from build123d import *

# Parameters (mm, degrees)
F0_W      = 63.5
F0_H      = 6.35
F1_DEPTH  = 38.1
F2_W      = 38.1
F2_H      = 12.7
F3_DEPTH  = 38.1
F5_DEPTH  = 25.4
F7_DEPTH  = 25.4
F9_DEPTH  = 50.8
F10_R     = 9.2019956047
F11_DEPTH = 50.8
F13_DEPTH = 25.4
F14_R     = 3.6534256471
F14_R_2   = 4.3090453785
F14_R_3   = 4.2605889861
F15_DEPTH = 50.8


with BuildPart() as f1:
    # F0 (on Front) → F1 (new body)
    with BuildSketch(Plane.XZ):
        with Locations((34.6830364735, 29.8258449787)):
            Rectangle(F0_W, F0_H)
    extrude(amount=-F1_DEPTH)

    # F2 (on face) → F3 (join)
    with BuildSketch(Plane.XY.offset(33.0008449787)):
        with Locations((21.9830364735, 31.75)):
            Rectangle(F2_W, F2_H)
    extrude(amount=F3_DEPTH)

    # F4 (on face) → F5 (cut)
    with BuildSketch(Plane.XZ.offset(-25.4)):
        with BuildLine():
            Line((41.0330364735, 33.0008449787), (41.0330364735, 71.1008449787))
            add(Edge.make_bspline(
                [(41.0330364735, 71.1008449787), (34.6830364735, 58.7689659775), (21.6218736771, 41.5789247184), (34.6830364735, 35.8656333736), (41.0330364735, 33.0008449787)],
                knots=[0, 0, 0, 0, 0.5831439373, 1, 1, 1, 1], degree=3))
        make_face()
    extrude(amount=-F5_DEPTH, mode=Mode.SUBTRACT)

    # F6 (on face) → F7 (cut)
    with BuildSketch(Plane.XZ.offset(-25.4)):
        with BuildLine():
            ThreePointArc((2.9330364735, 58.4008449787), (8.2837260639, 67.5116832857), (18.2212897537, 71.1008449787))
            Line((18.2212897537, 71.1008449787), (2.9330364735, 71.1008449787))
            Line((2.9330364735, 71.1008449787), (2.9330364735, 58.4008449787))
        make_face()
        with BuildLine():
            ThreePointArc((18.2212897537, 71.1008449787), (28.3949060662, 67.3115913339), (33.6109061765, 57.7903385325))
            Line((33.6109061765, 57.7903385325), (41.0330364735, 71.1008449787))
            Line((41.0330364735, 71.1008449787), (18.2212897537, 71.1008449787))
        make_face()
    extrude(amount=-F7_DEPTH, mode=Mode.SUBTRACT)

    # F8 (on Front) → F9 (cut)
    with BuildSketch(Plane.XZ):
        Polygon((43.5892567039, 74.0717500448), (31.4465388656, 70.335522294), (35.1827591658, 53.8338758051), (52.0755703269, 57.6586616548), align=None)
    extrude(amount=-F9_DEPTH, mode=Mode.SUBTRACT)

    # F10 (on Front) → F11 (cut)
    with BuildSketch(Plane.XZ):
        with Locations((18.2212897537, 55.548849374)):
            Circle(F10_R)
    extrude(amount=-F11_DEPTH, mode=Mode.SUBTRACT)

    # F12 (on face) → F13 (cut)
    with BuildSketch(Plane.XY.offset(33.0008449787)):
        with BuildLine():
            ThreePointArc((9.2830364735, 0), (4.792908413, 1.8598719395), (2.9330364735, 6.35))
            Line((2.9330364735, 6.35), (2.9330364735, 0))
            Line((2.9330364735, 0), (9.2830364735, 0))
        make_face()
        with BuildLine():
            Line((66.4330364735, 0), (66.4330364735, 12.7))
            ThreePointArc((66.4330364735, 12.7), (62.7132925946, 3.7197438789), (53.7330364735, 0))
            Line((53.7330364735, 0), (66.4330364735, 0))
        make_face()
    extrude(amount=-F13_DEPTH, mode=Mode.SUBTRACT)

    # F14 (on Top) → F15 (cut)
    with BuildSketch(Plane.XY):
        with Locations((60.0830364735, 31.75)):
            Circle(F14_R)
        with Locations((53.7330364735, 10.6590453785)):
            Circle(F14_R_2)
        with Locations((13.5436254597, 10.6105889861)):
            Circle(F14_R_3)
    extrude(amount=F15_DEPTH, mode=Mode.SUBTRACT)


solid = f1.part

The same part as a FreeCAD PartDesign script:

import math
import FreeCAD as App
import Part
import Sketcher
from FreeCAD import Vector
Q = App.Units.Quantity

doc = App.newDocument("Part")
params = doc.addObject("Spreadsheet::Sheet", "Params")
for row, (alias, value) in enumerate([
    ("sketch1_width", "2.5 in"),
    ("sketch1_height", "0.25 in"),
    ("pad1_length", "1.5 in"),
    ("sketch2_width", "1.5 in"),
    ("sketch2_height", "0.5 in"),
    ("pad2_length", "1.5 in"),
    ("pocket1_length", "1 in"),
    ("sketch4_height", "0.5 in"),
    ("sketch4_length", "0.6 in"),
    ("pocket2_length", "1 in"),
    ("pocket3_length", "2 in"),
    ("pocket4_length", "2 in"),
    ("sketch7_radius", "0.5 in"),
    ("sketch7_radius2", "0.25 in"),
    ("pocket5_length", "1 in"),
    ("pocket6_length", "2 in"),
], start=1):
    params.set(f"A{row}", alias)
    params.set(f"B{row}", "=" + value)
    params.setAlias(f"B{row}", alias)

body = doc.addObject("PartDesign::Body", "Body")
body.AllowCompound = True

# Sketch on XZ plane
sketch1 = body.newObject("Sketcher::SketchObject", "Sketch")
sketch1.AttachmentSupport = (doc.getObject("XZ_Plane"), [""])
sketch1.MapMode = "FlatFace"
sketch1.addGeometry(Part.LineSegment(Vector(2.933036, 33.000845, 0), Vector(2.933036, 26.650845, 0)), False)
sketch1.addGeometry(Part.LineSegment(Vector(2.933036, 26.650845, 0), Vector(66.433036, 26.650845, 0)), False)
sketch1.addGeometry(Part.LineSegment(Vector(66.433036, 26.650845, 0), Vector(66.433036, 33.000845, 0)), False)
sketch1.addGeometry(Part.LineSegment(Vector(66.433036, 33.000845, 0), Vector(2.933036, 33.000845, 0)), False)
sketch1.addConstraint(Sketcher.Constraint("Coincident", 0, 2, 1, 1))
sketch1.addConstraint(Sketcher.Constraint("Coincident", 1, 2, 2, 1))
sketch1.addConstraint(Sketcher.Constraint("Coincident", 2, 2, 3, 1))
sketch1.addConstraint(Sketcher.Constraint("Coincident", 3, 2, 0, 1))
sketch1.addConstraint(Sketcher.Constraint("Vertical", 0))
sketch1.addConstraint(Sketcher.Constraint("Horizontal", 1))
sketch1.addConstraint(Sketcher.Constraint("Vertical", 2))
sketch1.addConstraint(Sketcher.Constraint("Horizontal", 3))
sketch1.addConstraint(Sketcher.Constraint("DistanceX", 1, 1, 1, 2, Q("2.5 in")))
sketch1.addConstraint(Sketcher.Constraint("DistanceY", 0, 2, 0, 1, Q("0.25 in")))
sketch1.addConstraint(Sketcher.Constraint("DistanceX", -1, 1, 0, 2, 2.933036))
sketch1.addConstraint(Sketcher.Constraint("DistanceY", -1, 1, 0, 2, 26.650845))
sketch1.setExpression("Constraints[8]", "Params.sketch1_width")
sketch1.setExpression("Constraints[9]", "Params.sketch1_height")
pad1 = body.newObject("PartDesign::Pad", "Pad")
pad1.Profile = sketch1
pad1.setExpression("Length", "Params.pad1_length")
pad1.Reversed = True

# Sketch on XY plane
sketch2 = body.newObject("Sketcher::SketchObject", "Sketch001")
sketch2.AttachmentSupport = (doc.getObject("XY_Plane"), [""])
sketch2.MapMode = "FlatFace"
sketch2.AttachmentOffset = App.Placement(Vector(0, 0, 33.000845), App.Rotation())
sketch2.addGeometry(Part.LineSegment(Vector(2.933036, 38.1, 0), Vector(2.933036, 25.4, 0)), False)
sketch2.addGeometry(Part.LineSegment(Vector(2.933036, 25.4, 0), Vector(41.033036, 25.4, 0)), False)
sketch2.addGeometry(Part.LineSegment(Vector(41.033036, 25.4, 0), Vector(41.033036, 38.1, 0)), False)
sketch2.addGeometry(Part.LineSegment(Vector(41.033036, 38.1, 0), Vector(2.933036, 38.1, 0)), False)
sketch2.addConstraint(Sketcher.Constraint("Coincident", 0, 2, 1, 1))
sketch2.addConstraint(Sketcher.Constraint("Coincident", 1, 2, 2, 1))
sketch2.addConstraint(Sketcher.Constraint("Coincident", 2, 2, 3, 1))
sketch2.addConstraint(Sketcher.Constraint("Coincident", 3, 2, 0, 1))
sketch2.addConstraint(Sketcher.Constraint("Vertical", 0))
sketch2.addConstraint(Sketcher.Constraint("Horizontal", 1))
sketch2.addConstraint(Sketcher.Constraint("Vertical", 2))
sketch2.addConstraint(Sketcher.Constraint("Horizontal", 3))
sketch2.addConstraint(Sketcher.Constraint("DistanceX", 1, 1, 1, 2, Q("1.5 in")))
sketch2.addConstraint(Sketcher.Constraint("DistanceY", 0, 2, 0, 1, Q("0.5 in")))
sketch2.addConstraint(Sketcher.Constraint("DistanceY", -1, 1, 0, 2, Q("1 in")))
sketch2.addConstraint(Sketcher.Constraint("DistanceX", -1, 1, 0, 2, 2.933036))
sketch2.setExpression("Constraints[8]", "Params.sketch2_width")
sketch2.setExpression("Constraints[9]", "Params.sketch2_height")
pad2 = body.newObject("PartDesign::Pad", "Pad001")
pad2.Profile = sketch2
pad2.setExpression("Length", "Params.pad2_length")

# Sketch on XZ plane
sketch3 = body.newObject("Sketcher::SketchObject", "Sketch002")
sketch3.AttachmentSupport = (doc.getObject("XZ_Plane"), [""])
sketch3.MapMode = "FlatFace"
sketch3.AttachmentOffset = App.Placement(Vector(0, 0, -1 * 25.4), App.Rotation())
sketch3.addGeometry(Part.LineSegment(Vector(41.033036, 33.000845, 0), Vector(41.033036, 71.100845, 0)), False)
sketch3.addGeometry(Part.BSplineCurve([Vector(41.033036, 71.100845, 0), Vector(34.683036, 58.768966, 0), Vector(21.621874, 41.578925, 0), Vector(34.683036, 35.865633, 0), Vector(41.033036, 33.000845, 0)], [4, 1, 4], [0, 0.583143937, 1], False, 3, [1, 1, 1, 1, 1], False), False)
sketch3.addConstraint(Sketcher.Constraint("Block", 1))
sketch3.addConstraint(Sketcher.Constraint("Coincident", 0, 1, 1, 2))
sketch3.addConstraint(Sketcher.Constraint("Coincident", 1, 1, 0, 2))
pocket1 = body.newObject("PartDesign::Pocket", "Pocket")
pocket1.Profile = sketch3
pocket1.setExpression("Length", "Params.pocket1_length")

# Sketch on XZ plane
sketch4 = body.newObject("Sketcher::SketchObject", "Sketch003")
sketch4.AttachmentSupport = (doc.getObject("XZ_Plane"), [""])
sketch4.MapMode = "FlatFace"
sketch4.AttachmentOffset = App.Placement(Vector(0, 0, -1 * 25.4), App.Rotation())
sketch4.addGeometry(Part.ArcOfCircle(Part.Circle(Vector(18.22129, 55.548849, 0), Vector(0, 0, 1), 15.551996), math.radians(90), math.radians(169.433038)), False)
sketch4.addGeometry(Part.LineSegment(Vector(18.22129, 71.100845, 0), Vector(2.933036, 71.100845, 0)), False)
sketch4.addGeometry(Part.LineSegment(Vector(2.933036, 71.100845, 0), Vector(2.933036, 58.400845, 0)), False)
sketch4.addGeometry(Part.ArcOfCircle(Part.Circle(Vector(18.22129, 55.548849, 0), Vector(0, 0, 1), 15.551996), math.radians(8.286828), math.radians(90)), False)
sketch4.addGeometry(Part.LineSegment(Vector(33.610906, 57.790339, 0), Vector(41.033036, 71.100845, 0)), False)
sketch4.addGeometry(Part.LineSegment(Vector(41.033036, 71.100845, 0), Vector(18.22129, 71.100845, 0)), False)
sketch4.addConstraint(Sketcher.Constraint("Tangent", 0, 1, 1, 1))
sketch4.addConstraint(Sketcher.Constraint("Coincident", 1, 2, 2, 1))
sketch4.addConstraint(Sketcher.Constraint("Coincident", 2, 2, 0, 2))
sketch4.addConstraint(Sketcher.Constraint("Coincident", 3, 1, 4, 1))
sketch4.addConstraint(Sketcher.Constraint("Coincident", 4, 2, 5, 1))
sketch4.addConstraint(Sketcher.Constraint("Tangent", 5, 2, 3, 2))
sketch4.addConstraint(Sketcher.Constraint("Horizontal", 1))
sketch4.addConstraint(Sketcher.Constraint("Vertical", 2))
sketch4.addConstraint(Sketcher.Constraint("Horizontal", 5))
sketch4.addConstraint(Sketcher.Constraint("Coincident", 3, 3, 0, 3))
sketch4.addConstraint(Sketcher.Constraint("Equal", 0, 3))
sketch4.addConstraint(Sketcher.Constraint("DistanceY", 2, 2, 2, 1, Q("0.5 in")))
sketch4.addConstraint(Sketcher.Constraint("Distance", 4, Q("0.6 in")))
sketch4.addConstraint(Sketcher.Constraint("DistanceX", 1, 2, 4, 2, Q("1.5 in")))
sketch4.addConstraint(Sketcher.Constraint("Radius", 0, 15.551996))
sketch4.addConstraint(Sketcher.Constraint("DistanceX", -1, 1, 0, 3, 18.22129))
sketch4.addConstraint(Sketcher.Constraint("DistanceY", -1, 1, 0, 3, 55.548849))
sketch4.setExpression("Constraints[11]", "Params.sketch4_height")
sketch4.setExpression("Constraints[12]", "Params.sketch4_length")
pocket2 = body.newObject("PartDesign::Pocket", "Pocket001")
pocket2.Profile = sketch4
pocket2.setExpression("Length", "Params.pocket2_length")

# Sketch on XZ plane
sketch5 = body.newObject("Sketcher::SketchObject", "Sketch004")
sketch5.AttachmentSupport = (doc.getObject("XZ_Plane"), [""])
sketch5.MapMode = "FlatFace"
sketch5.addGeometry(Part.LineSegment(Vector(43.589257, 74.07175, 0), Vector(31.446539, 70.335522, 0)), False)
sketch5.addGeometry(Part.LineSegment(Vector(31.446539, 70.335522, 0), Vector(35.182759, 53.833876, 0)), False)
sketch5.addGeometry(Part.LineSegment(Vector(35.182759, 53.833876, 0), Vector(52.07557, 57.658662, 0)), False)
sketch5.addGeometry(Part.LineSegment(Vector(52.07557, 57.658662, 0), Vector(43.589257, 74.07175, 0)), False)
sketch5.addConstraint(Sketcher.Constraint("Coincident", 0, 2, 1, 1))
sketch5.addConstraint(Sketcher.Constraint("Coincident", 1, 2, 2, 1))
sketch5.addConstraint(Sketcher.Constraint("Coincident", 2, 2, 3, 1))
sketch5.addConstraint(Sketcher.Constraint("Coincident", 3, 2, 0, 1))
sketch5.addConstraint(Sketcher.Constraint("Perpendicular", 1, 2))
sketch5.addConstraint(Sketcher.Constraint("Distance", 3, 18.477202))
sketch5.addConstraint(Sketcher.Constraint("Distance", 1, 16.919329))
sketch5.addConstraint(Sketcher.Constraint("DistanceX", -1, 1, 0, 2, 31.446539))
sketch5.addConstraint(Sketcher.Constraint("DistanceX", -1, 1, 1, 2, 35.182759))
sketch5.addConstraint(Sketcher.Constraint("DistanceX", -1, 1, 2, 2, 52.07557))
sketch5.addConstraint(Sketcher.Constraint("DistanceY", -1, 1, 2, 2, 57.658662))
sketch5.addConstraint(Sketcher.Constraint("DistanceY", -1, 1, 3, 2, 74.07175))
pocket3 = body.newObject("PartDesign::Pocket", "Pocket002")
pocket3.Profile = sketch5
pocket3.setExpression("Length", "Params.pocket3_length")

# Sketch on XZ plane
sketch6 = body.newObject("Sketcher::SketchObject", "Sketch005")
sketch6.AttachmentSupport = (doc.getObject("XZ_Plane"), [""])
sketch6.MapMode = "FlatFace"
sketch6.addGeometry(Part.Circle(Vector(18.22129, 55.548849, 0), Vector(0, 0, 1), 9.201996), False)
sketch6.addConstraint(Sketcher.Constraint("Diameter", 0, 18.403991))
sketch6.addConstraint(Sketcher.Constraint("DistanceX", -1, 1, 0, 3, 18.22129))
sketch6.addConstraint(Sketcher.Constraint("DistanceY", -1, 1, 0, 3, 55.548849))
pocket4 = body.newObject("PartDesign::Pocket", "Pocket003")
pocket4.Profile = sketch6
pocket4.setExpression("Length", "Params.pocket4_length")

# Sketch on XY plane
sketch7 = body.newObject("Sketcher::SketchObject", "Sketch006")
sketch7.AttachmentSupport = (doc.getObject("XY_Plane"), [""])
sketch7.MapMode = "FlatFace"
sketch7.AttachmentOffset = App.Placement(Vector(0, 0, 33.000845), App.Rotation())
sketch7.addGeometry(Part.ArcOfCircle(Part.Circle(Vector(9.283036, 6.35, 0), Vector(0, 0, 1), 6.35), math.radians(180), math.radians(270)), False)
sketch7.addGeometry(Part.LineSegment(Vector(2.933036, 6.35, 0), Vector(2.933036, 0, 0)), False)
sketch7.addGeometry(Part.LineSegment(Vector(2.933036, 0, 0), Vector(9.283036, 0, 0)), False)
sketch7.addGeometry(Part.LineSegment(Vector(66.433036, 0, 0), Vector(66.433036, 12.7, 0)), False)
sketch7.addGeometry(Part.ArcOfCircle(Part.Circle(Vector(53.733036, 12.7, 0), Vector(0, 0, 1), 12.7), math.radians(-90), math.radians(0)), False)
sketch7.addGeometry(Part.LineSegment(Vector(53.733036, 0, 0), Vector(66.433036, 0, 0)), False)
sketch7.addConstraint(Sketcher.Constraint("Tangent", 0, 1, 1, 1))
sketch7.addConstraint(Sketcher.Constraint("Coincident", 1, 2, 2, 1))
sketch7.addConstraint(Sketcher.Constraint("Tangent", 2, 2, 0, 2))
sketch7.addConstraint(Sketcher.Constraint("Tangent", 3, 2, 4, 2))
sketch7.addConstraint(Sketcher.Constraint("Tangent", 4, 1, 5, 1))
sketch7.addConstraint(Sketcher.Constraint("Coincident", 5, 2, 3, 1))
sketch7.addConstraint(Sketcher.Constraint("Vertical", 1))
sketch7.addConstraint(Sketcher.Constraint("Horizontal", 2))
sketch7.addConstraint(Sketcher.Constraint("Vertical", 3))
sketch7.addConstraint(Sketcher.Constraint("Horizontal", 5))
sketch7.addConstraint(Sketcher.Constraint("PointOnObject", 1, 2, -1))
sketch7.addConstraint(Sketcher.Constraint("PointOnObject", 4, 1, -1))
sketch7.addConstraint(Sketcher.Constraint("Radius", 4, Q("0.5 in")))
sketch7.addConstraint(Sketcher.Constraint("Radius", 0, Q("0.25 in")))
sketch7.addConstraint(Sketcher.Constraint("DistanceX", 0, 1, 4, 3, Q("2 in")))
sketch7.addConstraint(Sketcher.Constraint("DistanceX", -1, 1, 0, 3, 9.283036))
sketch7.setExpression("Constraints[12]", "Params.sketch7_radius")
sketch7.setExpression("Constraints[13]", "Params.sketch7_radius2")
pocket5 = body.newObject("PartDesign::Pocket", "Pocket004")
pocket5.Profile = sketch7
pocket5.setExpression("Length", "Params.pocket5_length")

# Sketch on XY plane
sketch8 = body.newObject("Sketcher::SketchObject", "Sketch007")
sketch8.AttachmentSupport = (doc.getObject("XY_Plane"), [""])
sketch8.MapMode = "FlatFace"
sketch8.addGeometry(Part.Circle(Vector(60.083036, 31.75, 0), Vector(0, 0, 1), 3.653426), False)
sketch8.addGeometry(Part.Circle(Vector(53.733036, 10.659045, 0), Vector(0, 0, 1), 4.309045), False)
sketch8.addGeometry(Part.Circle(Vector(13.543625, 10.610589, 0), Vector(0, 0, 1), 4.260589), False)
sketch8.addConstraint(Sketcher.Constraint("DistanceY", -1, 1, 0, 3, Q("1.25 in")))
sketch8.addConstraint(Sketcher.Constraint("DistanceX", 1, 3, 0, 3, Q("0.25 in")))
sketch8.addConstraint(Sketcher.Constraint("Diameter", 0, 7.306851))
sketch8.addConstraint(Sketcher.Constraint("Diameter", 1, 8.618091))
sketch8.addConstraint(Sketcher.Constraint("Diameter", 2, 8.521178))
sketch8.addConstraint(Sketcher.Constraint("DistanceY", -1, 1, 2, 3, 10.610589))
sketch8.addConstraint(Sketcher.Constraint("DistanceX", 2, 3, 1, 3, 40.189411))
sketch8.addConstraint(Sketcher.Constraint("DistanceX", -1, 1, 0, 3, 60.083036))
sketch8.addConstraint(Sketcher.Constraint("DistanceY", -1, 1, 1, 3, 10.659045))
pocket6 = body.newObject("PartDesign::Pocket", "Pocket005")
pocket6.Profile = sketch8
pocket6.setExpression("Length", "Params.pocket6_length")
pocket6.Reversed = True

doc.recompute()
